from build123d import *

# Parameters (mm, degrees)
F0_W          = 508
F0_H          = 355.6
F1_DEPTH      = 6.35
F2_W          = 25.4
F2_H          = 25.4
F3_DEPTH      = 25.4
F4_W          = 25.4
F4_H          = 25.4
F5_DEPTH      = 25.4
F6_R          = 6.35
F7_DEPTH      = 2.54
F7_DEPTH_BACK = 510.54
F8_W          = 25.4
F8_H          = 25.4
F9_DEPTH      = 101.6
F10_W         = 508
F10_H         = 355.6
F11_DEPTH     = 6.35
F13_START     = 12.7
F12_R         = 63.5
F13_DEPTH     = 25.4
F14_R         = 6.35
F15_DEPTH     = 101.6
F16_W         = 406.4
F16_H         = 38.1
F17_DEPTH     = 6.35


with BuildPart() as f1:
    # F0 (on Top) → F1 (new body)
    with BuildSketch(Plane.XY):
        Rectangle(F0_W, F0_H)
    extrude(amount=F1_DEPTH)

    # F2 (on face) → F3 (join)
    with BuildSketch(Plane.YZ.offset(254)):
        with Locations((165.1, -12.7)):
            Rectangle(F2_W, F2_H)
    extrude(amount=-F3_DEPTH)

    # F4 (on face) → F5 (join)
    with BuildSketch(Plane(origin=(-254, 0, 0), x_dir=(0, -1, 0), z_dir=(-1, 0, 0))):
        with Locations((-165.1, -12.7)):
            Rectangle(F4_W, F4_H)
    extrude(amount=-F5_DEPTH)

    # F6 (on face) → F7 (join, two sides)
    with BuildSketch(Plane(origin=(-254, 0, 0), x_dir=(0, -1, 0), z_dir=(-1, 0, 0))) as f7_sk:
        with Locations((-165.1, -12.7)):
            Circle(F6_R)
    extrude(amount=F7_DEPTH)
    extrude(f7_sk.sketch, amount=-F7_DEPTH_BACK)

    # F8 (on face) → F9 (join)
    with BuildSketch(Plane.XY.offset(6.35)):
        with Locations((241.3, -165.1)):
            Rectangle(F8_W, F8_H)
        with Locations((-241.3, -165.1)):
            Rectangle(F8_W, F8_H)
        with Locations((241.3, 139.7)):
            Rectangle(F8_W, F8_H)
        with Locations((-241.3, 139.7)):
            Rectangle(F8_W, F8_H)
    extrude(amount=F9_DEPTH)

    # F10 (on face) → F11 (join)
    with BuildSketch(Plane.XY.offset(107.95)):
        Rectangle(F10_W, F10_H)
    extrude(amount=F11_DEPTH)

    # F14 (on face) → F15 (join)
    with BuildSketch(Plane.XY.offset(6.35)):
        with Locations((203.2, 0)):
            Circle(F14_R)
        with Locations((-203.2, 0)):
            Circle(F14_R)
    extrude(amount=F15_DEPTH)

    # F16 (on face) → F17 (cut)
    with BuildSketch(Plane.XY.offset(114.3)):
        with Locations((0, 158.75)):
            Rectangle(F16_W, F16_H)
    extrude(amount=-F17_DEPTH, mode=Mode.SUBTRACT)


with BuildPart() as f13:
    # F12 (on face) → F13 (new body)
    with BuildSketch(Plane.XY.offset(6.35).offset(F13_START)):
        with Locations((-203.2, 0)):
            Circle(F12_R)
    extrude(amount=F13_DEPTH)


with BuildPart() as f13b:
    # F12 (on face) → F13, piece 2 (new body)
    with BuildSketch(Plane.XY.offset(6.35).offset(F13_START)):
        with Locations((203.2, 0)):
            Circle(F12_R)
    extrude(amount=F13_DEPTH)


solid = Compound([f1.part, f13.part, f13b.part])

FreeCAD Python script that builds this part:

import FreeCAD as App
import Part
import Sketcher
Q = App.Units.Quantity


def add_polygon(sketch, points):
    """Adds a closed chain of lines whose ends are joined by coincident constraints."""
    first, n = sketch.GeometryCount, len(points)
    for a, b in zip(points, points[1:] + points[:1]):
        sketch.addGeometry(Part.LineSegment(App.Vector(*a, 0), App.Vector(*b, 0)), False)
    for i in range(n):
        sketch.addConstraint(Sketcher.Constraint("Coincident", first + i, 2, first + (i + 1) % n, 1))

doc = App.newDocument("Part")
body = doc.addObject("PartDesign::Body", "Body")

# Sketch on XY plane
sketch1 = body.newObject("Sketcher::SketchObject", "Sketch")
sketch1.AttachmentSupport = (doc.getObject("XY_Plane"), [""])
sketch1.MapMode = "FlatFace"
add_polygon(sketch1, [(-254, 178), (-254, -178), (254, -178), (254, 178)])  # lines 0-3
sketch1.addConstraint([
    Sketcher.Constraint("Vertical", 0),
    Sketcher.Constraint("Horizontal", 1),
    Sketcher.Constraint("Vertical", 2),
    Sketcher.Constraint("Horizontal", 3),
    Sketcher.Constraint("Symmetric", 0, 2, 2, 2, -1, 1),
    Sketcher.Constraint("DistanceX", 1, 1, 1, 2, Q("20 in")),
    Sketcher.Constraint("DistanceY", 0, 2, 0, 1, Q("14 in")),
])
pad1 = body.newObject("PartDesign::Pad", "Pad")
pad1.Profile = sketch1
pad1.Length = Q("0.25 in")

# Sketch on YZ plane
sketch2 = body.newObject("Sketcher::SketchObject", "Sketch001")
sketch2.AttachmentSupport = (doc.getObject("YZ_Plane"), [""])
sketch2.MapMode = "FlatFace"
sketch2.AttachmentOffset = App.Placement(App.Vector(0, 0, 10 * 25.4), App.Rotation())
add_polygon(sketch2, [(152, 0), (152, -25), (178, -25), (178, 0)])  # lines 0-3
sketch2.addConstraint([
    Sketcher.Constraint("Vertical", 0),
    Sketcher.Constraint("Horizontal", 1),
    Sketcher.Constraint("Vertical", 2),
    Sketcher.Constraint("Horizontal", 3),
    Sketcher.Constraint("PointOnObject", 2, 2, -1),
    Sketcher.Constraint("Equal", 3, 0),
    Sketcher.Constraint("DistanceX", 1, 1, 1, 2, Q("1 in")),
    Sketcher.Constraint("DistanceX", -1, 1, 0, 2, Q("6 in")),
])
pad2 = body.newObject("PartDesign::Pad", "Pad001")
pad2.Profile = sketch2
pad2.Length = Q("1 in")
pad2.Reversed = True

# Sketch on YZ plane
sketch3 = body.newObject("Sketcher::SketchObject", "Sketch002")
sketch3.AttachmentSupport = (doc.getObject("YZ_Plane"), [""])
sketch3.MapMode = "FlatFace"
sketch3.AttachmentOffset = App.Placement(App.Vector(0, 0, -10 * 25.4), App.Rotation())
add_polygon(sketch3, [(178, 0), (178, -25), (152, -25), (152, 0)])  # lines 0-3
sketch3.addConstraint([
    Sketcher.Constraint("Vertical", 0),
    Sketcher.Constraint("Horizontal", 1),
    Sketcher.Constraint("Vertical", 2),
    Sketcher.Constraint("Horizontal", 3),
    Sketcher.Constraint("PointOnObject", 2, 2, -1),
    Sketcher.Constraint("Equal", 3, 0),
    Sketcher.Constraint("DistanceX", 1, 2, 1, 1, Q("1 in")),
    Sketcher.Constraint("DistanceX", -1, 1, 0, 2, Q("7 in")),
])
pad3 = body.newObject("PartDesign::Pad", "Pad002")
pad3.Profile = sketch3
pad3.Length = Q("1 in")

# Sketch on YZ plane
sketch4 = body.newObject("Sketcher::SketchObject", "Sketch003")
sketch4.AttachmentSupport = (doc.getObject("YZ_Plane"), [""])
sketch4.MapMode = "FlatFace"
sketch4.AttachmentOffset = App.Placement(App.Vector(0, 0, -10 * 25.4), App.Rotation())
sketch4.addGeometry(Part.Circle(App.Vector(165, -13, 0), App.Vector(0, 0, 1), 6), False)
sketch4.addConstraint([
    Sketcher.Constraint("Diameter", 0, Q("0.5 in")),
    Sketcher.Constraint("DistanceX", -1, 1, 0, 3, Q("6.5 in")),
    Sketcher.Constraint("DistanceY", 0, 3, -1, 1, Q("0.5 in")),
])
pad4 = body.newObject("PartDesign::Pad", "Pad003")
pad4.Profile = sketch4
pad4.Type = "TwoLengths"
pad4.Length = Q("0.1 in")
pad4.Length2 = Q("20.1 in")
pad4.Reversed = True

# Sketch on XY plane
sketch5 = body.newObject("Sketcher::SketchObject", "Sketch004")
sketch5.AttachmentSupport = (doc.getObject("XY_Plane"), [""])
sketch5.MapMode = "FlatFace"
sketch5.AttachmentOffset = App.Placement(App.Vector(0, 0, 0.25 * 25.4), App.Rotation())
add_polygon(sketch5, [(229, -152), (229, -178), (254, -178), (254, -152)])  # lines 0-3
add_polygon(sketch5, [(-254, -152), (-254, -178), (-229, -178), (-229, -152)])  # lines 4-7
add_polygon(sketch5, [(229, 152), (229, 127), (254, 127), (254, 152)])  # lines 8-11
add_polygon(sketch5, [(-254, 152), (-254, 127), (-229, 127), (-229, 152)])  # lines 12-15
sketch5.addConstraint([
    Sketcher.Constraint("Vertical", 0),
    Sketcher.Constraint("Horizontal", 1),
    Sketcher.Constraint("Vertical", 2),
    Sketcher.Constraint("Horizontal", 3),
    Sketcher.Constraint("Vertical", 4),
    Sketcher.Constraint("Horizontal", 5),
    Sketcher.Constraint("Vertical", 6),
    Sketcher.Constraint("Horizontal", 7),
    Sketcher.Constraint("Vertical", 8),
    Sketcher.Constraint("Horizontal", 9),
    Sketcher.Constraint("Vertical", 10),
    Sketcher.Constraint("Horizontal", 11),
    Sketcher.Constraint("Vertical", 12),
    Sketcher.Constraint("Horizontal", 13),
    Sketcher.Constraint("Vertical", 14),
    Sketcher.Constraint("Horizontal", 15),
    Sketcher.Constraint("Symmetric", 7, 2, 10, 2, -1, 1),
    Sketcher.Constraint("Symmetric", 3, 2, 14, 2, -1, 1),
    Sketcher.Constraint("Symmetric", 1, 2, 4, 2, -2),
    Sketcher.Constraint("Symmetric", 3, 2, 6, 2, -2),
    Sketcher.Constraint("Symmetric", 9, 2, 12, 2, -2),
    Sketcher.Constraint("Vertical", 3, 2, 8, 2),
    Sketcher.Constraint("Equal", 15, 0),
    Sketcher.Constraint("Equal", 6, 8),
    Sketcher.Constraint("DistanceX", 1, 1, 1, 2, Q("1 in")),
    Sketcher.Constraint("DistanceX", -1, 1, 0, 2, Q("9 in")),
    Sketcher.Constraint("DistanceY", 0, 2, -1, 1, Q("7 in")),
])
pad5 = body.newObject("PartDesign::Pad", "Pad004")
pad5.Profile = sketch5
pad5.Length = Q("4 in")

# Sketch on XY plane
sketch6 = body.newObject("Sketcher::SketchObject", "Sketch005")
sketch6.AttachmentSupport = (doc.getObject("XY_Plane"), [""])
sketch6.MapMode = "FlatFace"
sketch6.AttachmentOffset = App.Placement(App.Vector(0, 0, 4.25 * 25.4), App.Rotation())
add_polygon(sketch6, [(-254, 178), (-254, -178), (254, -178), (254, 178)])  # lines 0-3
sketch6.addConstraint([
    Sketcher.Constraint("Vertical", 0),
    Sketcher.Constraint("Horizontal", 1),
    Sketcher.Constraint("Vertical", 2),
    Sketcher.Constraint("Horizontal", 3),
    Sketcher.Constraint("Symmetric", 0, 2, 2, 2, -1, 1),
    Sketcher.Constraint("DistanceX", 1, 1, 1, 2, Q("20 in")),
    Sketcher.Constraint("DistanceY", 0, 2, 0, 1, Q("14 in")),
])
pad6 = body.newObject("PartDesign::Pad", "Pad005")
pad6.Profile = sketch6
pad6.Length = Q("0.25 in")

# Sketch on XY plane
sketch7 = body.newObject("Sketcher::SketchObject", "Sketch006")
sketch7.AttachmentSupport = (doc.getObject("XY_Plane"), [""])
sketch7.MapMode = "FlatFace"
sketch7.AttachmentOffset = App.Placement(App.Vector(0, 0, 0.25 * 25.4), App.Rotation())
sketch7.addGeometry([
    Part.Circle(App.Vector(203, 0, 0), App.Vector(0, 0, 1), 6),
    Part.Circle(App.Vector(-203, 0, 0), App.Vector(0, 0, 1), 6),
], False)
sketch7.addConstraint([
    Sketcher.Constraint("Equal", 0, 1),
    Sketcher.Constraint("Symmetric", 0, 3, 1, 3, -1, 1),
    Sketcher.Constraint("PointOnObject", 0, 3, -1),
    Sketcher.Constraint("Diameter", 0, Q("0.5 in")),
    Sketcher.Constraint("DistanceX", -1, 1, 0, 3, Q("8 in")),
])
pad7 = body.newObject("PartDesign::Pad", "Pad006")
pad7.Profile = sketch7
pad7.Length = Q("4 in")

# Sketch on XY plane
sketch8 = body.newObject("Sketcher::SketchObject", "Sketch007")
sketch8.AttachmentSupport = (doc.getObject("XY_Plane"), [""])
sketch8.MapMode = "FlatFace"
sketch8.AttachmentOffset = App.Placement(App.Vector(0, 0, 4.5 * 25.4), App.Rotation())
add_polygon(sketch8, [(-203, 178), (-203, 140), (203, 140), (203, 178)])  # lines 0-3
sketch8.addConstraint([
    Sketcher.Constraint("Vertical", 0),
    Sketcher.Constraint("Horizontal", 1),
    Sketcher.Constraint("Vertical", 2),
    Sketcher.Constraint("Horizontal", 3),
    Sketcher.Constraint("DistanceX", 1, 1, 1, 2, Q("16 in")),
    Sketcher.Constraint("DistanceY", 0, 2, 0, 1, Q("1.5 in")),
    Sketcher.Constraint("DistanceX", 0, 2, -1, 1, Q("8 in")),
    Sketcher.Constraint("DistanceY", -1, 1, 2, 2, Q("7 in")),
])
pocket1 = body.newObject("PartDesign::Pocket", "Pocket")
pocket1.Profile = sketch8
pocket1.Length = Q("0.25 in")
body2 = doc.addObject("PartDesign::Body", "Body001")

# Sketch on XY plane
sketch9 = body2.newObject("Sketcher::SketchObject", "Sketch008")
sketch9.AttachmentSupport = (doc.getObject("XY_Plane001"), [""])
sketch9.MapMode = "FlatFace"
sketch9.AttachmentOffset = App.Placement(App.Vector(0, 0, 0.75 * 25.4), App.Rotation())
sketch9.addGeometry(Part.Circle(App.Vector(-203, 0, 0), App.Vector(0, 0, 1), 64), False)
sketch9.addConstraint([
    Sketcher.Constraint("PointOnObject", 0, 3, -1),
    Sketcher.Constraint("Diameter", 0, Q("5 in")),
    Sketcher.Constraint("DistanceX", 0, 3, -1, 1, Q("8 in")),
])
pad8 = body2.newObject("PartDesign::Pad", "Pad007")
pad8.Profile = sketch9
pad8.Length = Q("1 in")
body3 = doc.addObject("PartDesign::Body", "Body002")

# Sketch on XY plane
sketch10 = body3.newObject("Sketcher::SketchObject", "Sketch009")
sketch10.AttachmentSupport = (doc.getObject("XY_Plane002"), [""])
sketch10.MapMode = "FlatFace"
sketch10.AttachmentOffset = App.Placement(App.Vector(0, 0, 0.75 * 25.4), App.Rotation())
sketch10.addGeometry(Part.Circle(App.Vector(203, 0, 0), App.Vector(0, 0, 1), 64), False)
sketch10.addConstraint([
    Sketcher.Constraint("PointOnObject", 0, 3, -1),
    Sketcher.Constraint("Diameter", 0, Q("5 in")),
    Sketcher.Constraint("DistanceX", -1, 1, 0, 3, Q("8 in")),
])
pad9 = body3.newObject("PartDesign::Pad", "Pad008")
pad9.Profile = sketch10
pad9.Length = Q("1 in")

doc.recompute()
